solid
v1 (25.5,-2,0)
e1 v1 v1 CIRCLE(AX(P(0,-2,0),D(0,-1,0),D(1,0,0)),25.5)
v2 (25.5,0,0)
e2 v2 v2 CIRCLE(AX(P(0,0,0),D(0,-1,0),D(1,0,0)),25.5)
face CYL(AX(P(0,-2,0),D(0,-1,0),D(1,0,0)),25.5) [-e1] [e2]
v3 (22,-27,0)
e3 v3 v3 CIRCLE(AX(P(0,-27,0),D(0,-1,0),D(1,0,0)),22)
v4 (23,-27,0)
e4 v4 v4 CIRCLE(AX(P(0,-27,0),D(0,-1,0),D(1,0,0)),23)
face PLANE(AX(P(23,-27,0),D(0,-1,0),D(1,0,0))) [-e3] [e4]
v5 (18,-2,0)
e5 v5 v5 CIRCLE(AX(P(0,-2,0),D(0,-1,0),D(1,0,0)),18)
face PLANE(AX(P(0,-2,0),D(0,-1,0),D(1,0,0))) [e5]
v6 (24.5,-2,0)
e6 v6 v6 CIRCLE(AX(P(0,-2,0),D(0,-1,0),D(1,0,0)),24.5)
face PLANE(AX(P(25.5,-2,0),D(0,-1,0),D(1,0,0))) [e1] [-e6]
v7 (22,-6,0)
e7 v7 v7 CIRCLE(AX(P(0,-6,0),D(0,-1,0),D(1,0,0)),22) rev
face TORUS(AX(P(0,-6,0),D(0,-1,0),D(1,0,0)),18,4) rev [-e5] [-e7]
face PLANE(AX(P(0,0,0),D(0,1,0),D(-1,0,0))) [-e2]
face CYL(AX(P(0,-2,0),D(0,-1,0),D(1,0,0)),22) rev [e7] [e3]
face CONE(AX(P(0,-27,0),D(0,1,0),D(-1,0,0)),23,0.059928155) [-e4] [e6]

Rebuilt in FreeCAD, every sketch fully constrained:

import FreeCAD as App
import Part
import Sketcher

V = App.Vector


def edges_at(feature, points):
    """Names of the edges that pass closest to the given points."""
    edges = feature.Shape.Edges
    near = lambda p: min(range(len(edges)), key=lambda i: edges[i].distToShape(Part.Vertex(*p))[0])
    return sorted({f"Edge{near(p) + 1}" for p in points})

doc = App.newDocument("Part")
body = doc.addObject("PartDesign::Body", "Body")

sketch1 = body.newObject("Sketcher::SketchObject", "Sketch")
sketch1.AttachmentSupport = (doc.getObject("XY_Plane"), [""])
sketch1.MapMode = "FlatFace"
sketch1.addGeometry([
    Part.LineSegment(V(22, -2, 0), V(22, -27, 0)),
    Part.LineSegment(V(22, -27, 0), V(23, -27, 0)),
    Part.LineSegment(V(23, -27, 0), V(24.5, -2, 0)),
    Part.LineSegment(V(24.5, -2, 0), V(25.5, -2, 0)),
    Part.LineSegment(V(25.5, -2, 0), V(25.5, 0, 0)),
    Part.LineSegment(V(25.5, 0, 0), V(0, 0, 0)),
    Part.LineSegment(V(0, 0, 0), V(0, -2, 0)),
    Part.LineSegment(V(0, -2, 0), V(22, -2, 0)),
], False)
sketch1.addConstraint([
    Sketcher.Constraint("Coincident", 0, 2, 1, 1),
    Sketcher.Constraint("Coincident", 1, 2, 2, 1),
    Sketcher.Constraint("Coincident", 2, 2, 3, 1),
    Sketcher.Constraint("Coincident", 3, 2, 4, 1),
    Sketcher.Constraint("Coincident", 4, 2, 5, 1),
    Sketcher.Constraint("Coincident", 5, 2, 6, 1),
    Sketcher.Constraint("Coincident", 6, 2, 7, 1),
    Sketcher.Constraint("Coincident", 7, 2, 0, 1),
    Sketcher.Constraint("Vertical", 0),
    Sketcher.Constraint("Horizontal", 1),
    Sketcher.Constraint("Horizontal", 3),
    Sketcher.Constraint("Vertical", 4),
    Sketcher.Constraint("Horizontal", 5),
    Sketcher.Constraint("Vertical", 6),
    Sketcher.Constraint("Horizontal", 7),
    Sketcher.Constraint("Coincident", 5, 2, -1, 1),
    Sketcher.Constraint("Horizontal", 3, 2, 6, 2),
    Sketcher.Constraint("Equal", 1, 3),
    Sketcher.Constraint("DistanceX", 1, 1, 1, 2, 1.0),
    Sketcher.Constraint("DistanceX", 7, 1, 7, 2, 22.0),
    Sketcher.Constraint("DistanceY", 0, 2, 0, 1, 25.0),
    Sketcher.Constraint("DistanceY", 4, 1, 4, 2, 2.0),
    Sketcher.Constraint("DistanceX", 5, 2, 5, 1, 25.5),
])
revolution = body.newObject("PartDesign::Revolution", "Revolution")
revolution.Profile = sketch1
revolution.ReferenceAxis = (sketch1, ["V_Axis"])
revolution.Angle = 360
doc.recompute()

fillet = body.newObject("PartDesign::Fillet", "Fillet")
fillet.Base = (revolution, edges_at(revolution, [(-22, -2, 0)]))
fillet.Radius = 4

doc.recompute()
